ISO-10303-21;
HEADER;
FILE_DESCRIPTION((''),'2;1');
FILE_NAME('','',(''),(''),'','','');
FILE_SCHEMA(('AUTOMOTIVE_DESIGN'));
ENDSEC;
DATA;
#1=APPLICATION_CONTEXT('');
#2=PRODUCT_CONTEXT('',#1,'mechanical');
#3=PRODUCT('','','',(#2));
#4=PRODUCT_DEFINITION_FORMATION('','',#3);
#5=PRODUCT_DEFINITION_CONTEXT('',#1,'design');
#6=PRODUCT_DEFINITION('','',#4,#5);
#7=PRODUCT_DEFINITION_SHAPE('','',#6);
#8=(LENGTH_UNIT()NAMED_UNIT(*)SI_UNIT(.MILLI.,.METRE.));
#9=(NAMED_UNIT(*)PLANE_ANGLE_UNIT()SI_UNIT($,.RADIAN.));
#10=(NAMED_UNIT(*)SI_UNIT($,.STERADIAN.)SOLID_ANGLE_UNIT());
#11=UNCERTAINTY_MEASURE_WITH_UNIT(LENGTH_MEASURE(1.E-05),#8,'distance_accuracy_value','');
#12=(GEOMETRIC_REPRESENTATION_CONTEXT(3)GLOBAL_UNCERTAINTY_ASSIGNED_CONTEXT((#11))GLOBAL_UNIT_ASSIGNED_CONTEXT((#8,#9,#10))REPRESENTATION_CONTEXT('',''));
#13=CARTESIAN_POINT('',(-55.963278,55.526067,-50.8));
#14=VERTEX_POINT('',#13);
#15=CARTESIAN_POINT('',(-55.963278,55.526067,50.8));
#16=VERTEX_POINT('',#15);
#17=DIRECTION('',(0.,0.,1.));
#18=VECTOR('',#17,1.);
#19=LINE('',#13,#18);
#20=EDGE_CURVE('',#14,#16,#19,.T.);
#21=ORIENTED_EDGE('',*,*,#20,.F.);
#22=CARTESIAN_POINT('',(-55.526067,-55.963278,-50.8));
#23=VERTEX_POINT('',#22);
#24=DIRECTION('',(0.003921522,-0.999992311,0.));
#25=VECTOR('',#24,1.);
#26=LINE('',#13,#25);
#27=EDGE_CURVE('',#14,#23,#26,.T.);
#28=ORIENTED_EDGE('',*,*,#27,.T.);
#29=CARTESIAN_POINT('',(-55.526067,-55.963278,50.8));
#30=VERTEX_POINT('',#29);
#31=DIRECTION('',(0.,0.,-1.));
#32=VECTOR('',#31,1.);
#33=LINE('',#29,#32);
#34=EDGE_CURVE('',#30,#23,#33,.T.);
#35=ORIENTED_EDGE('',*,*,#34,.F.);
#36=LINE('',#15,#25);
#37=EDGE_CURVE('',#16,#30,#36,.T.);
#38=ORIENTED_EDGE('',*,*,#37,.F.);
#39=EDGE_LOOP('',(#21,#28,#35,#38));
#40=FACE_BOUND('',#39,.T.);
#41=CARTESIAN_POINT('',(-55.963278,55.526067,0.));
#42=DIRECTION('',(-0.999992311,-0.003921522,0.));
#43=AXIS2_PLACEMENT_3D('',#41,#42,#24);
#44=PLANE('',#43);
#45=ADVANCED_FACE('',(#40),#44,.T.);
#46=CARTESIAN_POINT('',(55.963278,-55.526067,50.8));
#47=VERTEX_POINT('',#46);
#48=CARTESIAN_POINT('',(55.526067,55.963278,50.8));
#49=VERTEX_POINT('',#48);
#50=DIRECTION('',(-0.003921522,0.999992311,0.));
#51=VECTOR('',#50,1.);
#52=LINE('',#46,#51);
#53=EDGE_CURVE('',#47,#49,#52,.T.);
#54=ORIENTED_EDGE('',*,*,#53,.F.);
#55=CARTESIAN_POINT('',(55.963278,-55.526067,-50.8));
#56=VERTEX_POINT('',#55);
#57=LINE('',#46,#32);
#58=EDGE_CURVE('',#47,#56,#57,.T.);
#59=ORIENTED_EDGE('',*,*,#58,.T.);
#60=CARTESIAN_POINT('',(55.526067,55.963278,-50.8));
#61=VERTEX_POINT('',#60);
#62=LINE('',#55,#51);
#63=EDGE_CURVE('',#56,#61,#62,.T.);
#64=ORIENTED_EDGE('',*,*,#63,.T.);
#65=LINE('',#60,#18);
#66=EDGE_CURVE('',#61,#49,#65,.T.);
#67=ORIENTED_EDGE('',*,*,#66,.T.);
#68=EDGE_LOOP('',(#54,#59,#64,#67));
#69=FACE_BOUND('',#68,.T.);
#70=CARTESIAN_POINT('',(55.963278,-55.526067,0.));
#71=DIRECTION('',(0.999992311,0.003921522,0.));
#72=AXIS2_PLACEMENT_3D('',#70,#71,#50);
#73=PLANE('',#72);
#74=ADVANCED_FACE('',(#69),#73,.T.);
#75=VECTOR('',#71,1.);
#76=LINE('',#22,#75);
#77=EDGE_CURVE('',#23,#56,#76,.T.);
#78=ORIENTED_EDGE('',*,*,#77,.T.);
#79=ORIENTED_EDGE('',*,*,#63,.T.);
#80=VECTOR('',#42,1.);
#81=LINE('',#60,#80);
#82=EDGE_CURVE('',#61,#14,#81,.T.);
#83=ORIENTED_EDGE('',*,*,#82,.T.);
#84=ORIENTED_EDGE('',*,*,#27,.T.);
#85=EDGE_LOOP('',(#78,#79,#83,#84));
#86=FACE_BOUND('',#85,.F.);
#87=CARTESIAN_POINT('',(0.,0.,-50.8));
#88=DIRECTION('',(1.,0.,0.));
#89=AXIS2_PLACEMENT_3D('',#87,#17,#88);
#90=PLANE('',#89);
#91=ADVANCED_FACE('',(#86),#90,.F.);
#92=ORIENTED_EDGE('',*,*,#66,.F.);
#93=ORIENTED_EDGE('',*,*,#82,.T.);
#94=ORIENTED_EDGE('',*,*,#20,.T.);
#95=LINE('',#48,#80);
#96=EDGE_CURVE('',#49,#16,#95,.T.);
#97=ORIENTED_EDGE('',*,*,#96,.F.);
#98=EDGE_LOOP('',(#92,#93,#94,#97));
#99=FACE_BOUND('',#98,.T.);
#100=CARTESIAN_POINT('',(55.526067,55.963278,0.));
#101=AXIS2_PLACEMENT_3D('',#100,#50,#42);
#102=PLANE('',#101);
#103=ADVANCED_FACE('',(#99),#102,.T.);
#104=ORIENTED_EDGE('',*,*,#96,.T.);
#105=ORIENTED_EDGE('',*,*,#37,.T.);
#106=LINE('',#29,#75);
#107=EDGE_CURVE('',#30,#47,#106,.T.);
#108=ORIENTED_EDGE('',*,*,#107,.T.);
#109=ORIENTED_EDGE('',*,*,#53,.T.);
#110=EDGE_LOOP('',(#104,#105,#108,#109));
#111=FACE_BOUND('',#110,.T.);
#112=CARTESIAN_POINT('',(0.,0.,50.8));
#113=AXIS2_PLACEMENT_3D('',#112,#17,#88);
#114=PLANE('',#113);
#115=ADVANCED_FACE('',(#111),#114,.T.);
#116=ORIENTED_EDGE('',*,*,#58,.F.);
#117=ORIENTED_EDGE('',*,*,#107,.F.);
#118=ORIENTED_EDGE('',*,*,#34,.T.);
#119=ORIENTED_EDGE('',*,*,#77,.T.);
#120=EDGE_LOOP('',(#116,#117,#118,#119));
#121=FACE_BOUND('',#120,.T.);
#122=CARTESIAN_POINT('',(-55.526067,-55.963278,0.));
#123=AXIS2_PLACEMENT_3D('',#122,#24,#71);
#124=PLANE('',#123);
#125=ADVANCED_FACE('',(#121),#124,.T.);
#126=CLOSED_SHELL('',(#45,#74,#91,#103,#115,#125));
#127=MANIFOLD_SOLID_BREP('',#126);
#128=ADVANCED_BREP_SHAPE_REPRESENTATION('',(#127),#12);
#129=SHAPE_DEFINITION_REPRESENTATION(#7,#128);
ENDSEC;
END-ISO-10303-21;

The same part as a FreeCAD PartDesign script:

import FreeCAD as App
import Part
import Sketcher
Q = App.Units.Quantity


def add_polygon(sketch, points):
    """Adds a closed chain of lines whose ends are joined by coincident constraints."""
    first, n = sketch.GeometryCount, len(points)
    for a, b in zip(points, points[1:] + points[:1]):
        sketch.addGeometry(Part.LineSegment(App.Vector(*a, 0), App.Vector(*b, 0)), False)
    for i in range(n):
        sketch.addConstraint(Sketcher.Constraint("Coincident", first + i, 2, first + (i + 1) % n, 1))

doc = App.newDocument("Part")
body = doc.addObject("PartDesign::Body", "Body")

# Sketch on XY plane
sketch1 = body.newObject("Sketcher::SketchObject", "Sketch")
sketch1.AttachmentSupport = (doc.getObject("XY_Plane"), [""])
sketch1.MapMode = "FlatFace"
add_polygon(sketch1, [(55.963278, -55.526067), (55.526067, 55.963278), (-55.963278, 55.526067), (-55.526067, -55.963278)])  # lines 0-3
sketch1.addConstraint(Sketcher.Constraint("Symmetric", 0, 2, 2, 2, -1, 1))
sketch1.addConstraint(Sketcher.Constraint("Symmetric", 1, 2, 3, 2, -1, 1))
sketch1.addConstraint(Sketcher.Constraint("Perpendicular", 0, 1))
sketch1.addConstraint(Sketcher.Constraint("Equal", 0, 1))
sketch1.addConstraint(Sketcher.Constraint("Distance", 0, Q("111.490202 mm")))
sketch1.addConstraint(Sketcher.Constraint("DistanceY", 1, 2, 0, 2, Q("0.437211 mm")))
pad1 = body.newObject("PartDesign::Pad", "Pad")
pad1.Profile = sketch1
pad1.Length = Q("4 in")
pad1.Midplane = True

doc.recompute()
